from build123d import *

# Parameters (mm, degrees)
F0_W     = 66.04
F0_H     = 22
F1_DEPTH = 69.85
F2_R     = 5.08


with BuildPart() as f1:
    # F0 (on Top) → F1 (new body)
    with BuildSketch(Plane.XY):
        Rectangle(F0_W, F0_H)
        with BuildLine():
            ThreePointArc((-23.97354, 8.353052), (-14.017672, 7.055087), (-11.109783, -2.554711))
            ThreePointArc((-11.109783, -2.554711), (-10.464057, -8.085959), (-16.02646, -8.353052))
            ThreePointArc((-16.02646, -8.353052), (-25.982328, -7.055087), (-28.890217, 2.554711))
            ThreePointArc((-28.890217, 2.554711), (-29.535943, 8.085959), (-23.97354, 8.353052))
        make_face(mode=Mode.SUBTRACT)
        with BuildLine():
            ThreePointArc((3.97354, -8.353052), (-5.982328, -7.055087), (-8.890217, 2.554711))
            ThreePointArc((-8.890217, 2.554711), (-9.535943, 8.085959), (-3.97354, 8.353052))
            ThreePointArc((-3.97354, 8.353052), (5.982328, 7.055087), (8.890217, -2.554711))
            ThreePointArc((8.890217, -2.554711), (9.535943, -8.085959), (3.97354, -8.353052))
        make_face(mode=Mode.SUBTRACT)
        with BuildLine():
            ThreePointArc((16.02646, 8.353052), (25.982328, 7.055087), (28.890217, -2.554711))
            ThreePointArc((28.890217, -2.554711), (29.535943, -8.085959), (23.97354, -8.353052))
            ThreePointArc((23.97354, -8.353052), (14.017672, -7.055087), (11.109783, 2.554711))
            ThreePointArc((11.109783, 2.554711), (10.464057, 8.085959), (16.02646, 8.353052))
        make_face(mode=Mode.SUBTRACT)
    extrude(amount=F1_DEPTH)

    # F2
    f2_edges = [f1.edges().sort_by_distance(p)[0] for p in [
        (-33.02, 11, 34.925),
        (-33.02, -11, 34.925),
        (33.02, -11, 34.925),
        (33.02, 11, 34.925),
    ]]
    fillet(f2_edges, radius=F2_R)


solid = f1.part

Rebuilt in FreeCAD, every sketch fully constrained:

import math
import FreeCAD as App
import Part
import Sketcher
Q = App.Units.Quantity


def edges_at(feature, points):
    """Names of the edges that pass closest to the given points."""
    edges = feature.Shape.Edges
    near = lambda p: min(range(len(edges)), key=lambda i: edges[i].distToShape(Part.Vertex(*p))[0])
    return sorted({f"Edge{near(p) + 1}" for p in points})


def add_polygon(sketch, points):
    """Adds a closed chain of lines whose ends are joined by coincident constraints."""
    first, n = sketch.GeometryCount, len(points)
    for a, b in zip(points, points[1:] + points[:1]):
        sketch.addGeometry(Part.LineSegment(App.Vector(*a, 0), App.Vector(*b, 0)), False)
    for i in range(n):
        sketch.addConstraint(Sketcher.Constraint("Coincident", first + i, 2, first + (i + 1) % n, 1))

doc = App.newDocument("Part")
body = doc.addObject("PartDesign::Body", "Body")

sketch1 = doc.addObject("Sketcher::SketchObject", "Sketch")
body.addObject(sketch1)
sketch1.AttachmentSupport = (doc.XY_Plane, [""])
sketch1.MapMode = "FlatFace"
add_polygon(sketch1, [(-33, 11), (-33, -11), (33, -11), (33, 11)])
sketch1.addGeometry(Part.ArcOfCircle(Part.Circle(App.Vector(-26.6, 5.6, 0), App.Vector(0, 0, 1), 3.8), math.radians(46), math.radians(234)), False)
sketch1.addGeometry(Part.ArcOfCircle(Part.Circle(App.Vector(-20, 0, 0), App.Vector(0, 0, 1), 9.3), math.radians(-16), math.radians(115)), False)
sketch1.addGeometry(Part.ArcOfCircle(Part.Circle(App.Vector(-13.4, -5.6, 0), App.Vector(0, 0, 1), 3.8), math.radians(-134), math.radians(54)), False)
sketch1.addGeometry(Part.ArcOfCircle(Part.Circle(App.Vector(-20, 0, 0), App.Vector(0, 0, 1), 9.3), math.radians(164), math.radians(295)), False)
sketch1.addGeometry(Part.ArcOfCircle(Part.Circle(App.Vector(6.6, -5.6, 0), App.Vector(0, 0, 1), 3.8), math.radians(-134), math.radians(54)), False)
sketch1.addGeometry(Part.ArcOfCircle(Part.Circle(App.Vector(0, 0, 0), App.Vector(0, 0, 1), 9.3), math.radians(164), math.radians(295)), False)
sketch1.addGeometry(Part.ArcOfCircle(Part.Circle(App.Vector(-6.6, 5.6, 0), App.Vector(0, 0, 1), 3.8), math.radians(46), math.radians(234)), False)
sketch1.addGeometry(Part.ArcOfCircle(Part.Circle(App.Vector(0, 0, 0), App.Vector(0, 0, 1), 9.3), math.radians(-16), math.radians(115)), False)
sketch1.addGeometry(Part.ArcOfCircle(Part.Circle(App.Vector(13.4, 5.6, 0), App.Vector(0, 0, 1), 3.8), math.radians(46), math.radians(234)), False)
sketch1.addGeometry(Part.ArcOfCircle(Part.Circle(App.Vector(20, 0, 0), App.Vector(0, 0, 1), 9.3), math.radians(-16), math.radians(115)), False)
sketch1.addGeometry(Part.ArcOfCircle(Part.Circle(App.Vector(26.6, -5.6, 0), App.Vector(0, 0, 1), 3.8), math.radians(-134), math.radians(54)), False)
sketch1.addGeometry(Part.ArcOfCircle(Part.Circle(App.Vector(20, 0, 0), App.Vector(0, 0, 1), 9.3), math.radians(164), math.radians(295)), False)
sketch1.addConstraint(Sketcher.Constraint("Coincident", 4, 1, 5, 2))
sketch1.addConstraint(Sketcher.Constraint("Coincident", 5, 1, 6, 2))
sketch1.addConstraint(Sketcher.Constraint("Coincident", 6, 1, 7, 2))
sketch1.addConstraint(Sketcher.Constraint("Coincident", 7, 1, 4, 2))
sketch1.addConstraint(Sketcher.Constraint("Coincident", 8, 1, 9, 2))
sketch1.addConstraint(Sketcher.Constraint("Coincident", 9, 1, 10, 2))
sketch1.addConstraint(Sketcher.Constraint("Coincident", 10, 1, 11, 2))
sketch1.addConstraint(Sketcher.Constraint("Coincident", 11, 1, 8, 2))
sketch1.addConstraint(Sketcher.Constraint("Coincident", 12, 1, 13, 2))
sketch1.addConstraint(Sketcher.Constraint("Coincident", 13, 1, 14, 2))
sketch1.addConstraint(Sketcher.Constraint("Coincident", 14, 1, 15, 2))
sketch1.addConstraint(Sketcher.Constraint("Coincident", 15, 1, 12, 2))
sketch1.addConstraint(Sketcher.Constraint("Vertical", 0))
sketch1.addConstraint(Sketcher.Constraint("Horizontal", 1))
sketch1.addConstraint(Sketcher.Constraint("Vertical", 2))
sketch1.addConstraint(Sketcher.Constraint("Horizontal", 3))
sketch1.addConstraint(Sketcher.Constraint("Coincident", 9, 3, -1, 1))
sketch1.addConstraint(Sketcher.Constraint("Coincident", 11, 3, -1, 1))
sketch1.addConstraint(Sketcher.Constraint("Coincident", 7, 3, 5, 3))
sketch1.addConstraint(Sketcher.Constraint("Coincident", 15, 3, 13, 3))
sketch1.addConstraint(Sketcher.Constraint("Equal", 4, 6))
sketch1.addConstraint(Sketcher.Constraint("Equal", 5, 7))
sketch1.addConstraint(Sketcher.Constraint("Equal", 6, 8))
sketch1.addConstraint(Sketcher.Constraint("Equal", 7, 9))
sketch1.addConstraint(Sketcher.Constraint("Equal", 8, 10))
sketch1.addConstraint(Sketcher.Constraint("Equal", 9, 11))
sketch1.addConstraint(Sketcher.Constraint("Equal", 10, 12))
sketch1.addConstraint(Sketcher.Constraint("Equal", 11, 13))
sketch1.addConstraint(Sketcher.Constraint("Equal", 12, 14))
sketch1.addConstraint(Sketcher.Constraint("Equal", 13, 15))
sketch1.addConstraint(Sketcher.Constraint("Symmetric", 8, 3, 10, 3, -1, 1))
sketch1.addConstraint(Sketcher.Constraint("Symmetric", 6, 3, 12, 3, -1, 1))
sketch1.addConstraint(Sketcher.Constraint("Symmetric", 5, 3, 13, 3, -1, 1))
sketch1.addConstraint(Sketcher.Constraint("Symmetric", 4, 3, 14, 3, -1, 1))
sketch1.addConstraint(Sketcher.Constraint("Symmetric", 0, 2, 2, 2, -1, 1))
sketch1.addConstraint(Sketcher.Constraint("PointOnObject", 5, 3, -1))
sketch1.addConstraint(Sketcher.Constraint("Horizontal", 6, 3, 8, 3))
sketch1.addConstraint(Sketcher.Constraint("Horizontal", 4, 3, 10, 3))
sketch1.addConstraint(Sketcher.Constraint("Horizontal", 6, 1, 8, 1))
sketch1.addConstraint(Sketcher.Constraint("Horizontal", 7, 1, 9, 1))
sketch1.addConstraint(Sketcher.Constraint("Radius", 4, Q("0.15 in")))
sketch1.addConstraint(Sketcher.Constraint("DistanceX", 1, 1, 1, 2, Q("2.6 in")))
sketch1.addConstraint(Sketcher.Constraint("Radius", 5, 9.25))
sketch1.addConstraint(Sketcher.Constraint("DistanceY", 0, 2, 0, 1, 22.0))
sketch1.addConstraint(Sketcher.Constraint("DistanceX", 5, 3, -1, 1, 20.0))
sketch1.addConstraint(Sketcher.Constraint("DistanceX", 4, 3, -1, 1, 26.63001))
sketch1.addConstraint(Sketcher.Constraint("DistanceX", 4, 1, -1, 1, 23.97354))
pad1 = doc.addObject("PartDesign::Pad", "Pad")
body.addObject(pad1)
pad1.Profile = sketch1
pad1.Length = Q("2.75 in")
doc.recompute()

fillet = doc.addObject("PartDesign::Fillet", "Fillet")
body.addObject(fillet)
fillet.Base = (pad1, edges_at(pad1, [
    (-33.02, 11, 34.925),
    (-33.02, -11, 34.925),
    (33.02, -11, 34.925),
    (33.02, 11, 34.925),
]))
fillet.Radius = Q("0.2 in")

doc.recompute()
